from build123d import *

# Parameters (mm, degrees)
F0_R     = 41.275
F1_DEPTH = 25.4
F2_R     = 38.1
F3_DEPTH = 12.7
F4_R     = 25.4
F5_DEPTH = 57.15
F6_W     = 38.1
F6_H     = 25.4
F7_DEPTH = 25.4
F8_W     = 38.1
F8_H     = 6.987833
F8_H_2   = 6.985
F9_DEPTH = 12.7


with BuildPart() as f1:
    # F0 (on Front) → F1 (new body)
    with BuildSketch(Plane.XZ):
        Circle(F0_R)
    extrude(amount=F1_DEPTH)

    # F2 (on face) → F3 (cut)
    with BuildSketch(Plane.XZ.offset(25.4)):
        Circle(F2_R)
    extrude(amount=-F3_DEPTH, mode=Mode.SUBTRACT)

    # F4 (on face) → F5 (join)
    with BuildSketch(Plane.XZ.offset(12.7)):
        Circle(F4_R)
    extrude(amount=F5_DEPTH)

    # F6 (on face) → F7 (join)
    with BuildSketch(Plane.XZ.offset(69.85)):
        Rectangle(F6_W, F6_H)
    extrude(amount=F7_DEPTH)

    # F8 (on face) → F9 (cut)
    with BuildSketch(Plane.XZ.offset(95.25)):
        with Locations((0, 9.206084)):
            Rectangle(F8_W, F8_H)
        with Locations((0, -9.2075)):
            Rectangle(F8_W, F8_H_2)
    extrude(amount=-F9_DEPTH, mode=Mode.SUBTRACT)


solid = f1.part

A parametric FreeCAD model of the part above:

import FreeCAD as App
import Part
import Sketcher

V = App.Vector
Q = App.Units.Quantity


def add_polygon(sketch, points):
    """Adds a closed chain of lines whose ends are joined by coincident constraints."""
    first, n = sketch.GeometryCount, len(points)
    for a, b in zip(points, points[1:] + points[:1]):
        sketch.addGeometry(Part.LineSegment(App.Vector(*a, 0), App.Vector(*b, 0)), False)
    for i in range(n):
        sketch.addConstraint(Sketcher.Constraint("Coincident", first + i, 2, first + (i + 1) % n, 1))

doc = App.newDocument("Part")
body = doc.addObject("PartDesign::Body", "Body")

# Sketch on XZ plane
sketch1 = body.newObject("Sketcher::SketchObject", "Sketch")
sketch1.AttachmentSupport = (doc.getObject("XZ_Plane"), [""])
sketch1.MapMode = "FlatFace"
sketch1.addGeometry(Part.Circle(V(0, 0, 0), V(0, 0, 1), 41), False)
sketch1.addConstraint([
    Sketcher.Constraint("Coincident", 0, 3, -1, 1),
    Sketcher.Constraint("Diameter", 0, Q("3.25 in")),
])
pad1 = body.newObject("PartDesign::Pad", "Pad")
pad1.Profile = sketch1
pad1.Length = Q("1 in")

# Sketch on XZ plane
sketch2 = body.newObject("Sketcher::SketchObject", "Sketch001")
sketch2.AttachmentSupport = (doc.getObject("XZ_Plane"), [""])
sketch2.MapMode = "FlatFace"
sketch2.AttachmentOffset = App.Placement(V(0, 0, 1 * 25.4), App.Rotation())
sketch2.addGeometry(Part.Circle(V(0, 0, 0), V(0, 0, 1), 38), False)
sketch2.addConstraint([
    Sketcher.Constraint("Coincident", 0, 3, -1, 1),
    Sketcher.Constraint("Diameter", 0, Q("3 in")),
])
pocket1 = body.newObject("PartDesign::Pocket", "Pocket")
pocket1.Profile = sketch2
pocket1.Length = Q("0.5 in")

# Sketch on XZ plane
sketch3 = body.newObject("Sketcher::SketchObject", "Sketch002")
sketch3.AttachmentSupport = (doc.getObject("XZ_Plane"), [""])
sketch3.MapMode = "FlatFace"
sketch3.AttachmentOffset = App.Placement(V(0, 0, 0.5 * 25.4), App.Rotation())
sketch3.addGeometry(Part.Circle(V(0, 0, 0), V(0, 0, 1), 25), False)
sketch3.addConstraint([
    Sketcher.Constraint("Coincident", 0, 3, -1, 1),
    Sketcher.Constraint("Diameter", 0, Q("2 in")),
])
pad2 = body.newObject("PartDesign::Pad", "Pad001")
pad2.Profile = sketch3
pad2.Length = Q("2.25 in")

# Sketch on XZ plane
sketch4 = body.newObject("Sketcher::SketchObject", "Sketch003")
sketch4.AttachmentSupport = (doc.getObject("XZ_Plane"), [""])
sketch4.MapMode = "FlatFace"
sketch4.AttachmentOffset = App.Placement(V(0, 0, 2.75 * 25.4), App.Rotation())
add_polygon(sketch4, [(-19, 13), (-19, -13), (19, -13), (19, 13)])  # lines 0-3
sketch4.addConstraint([
    Sketcher.Constraint("Vertical", 0),
    Sketcher.Constraint("Horizontal", 1),
    Sketcher.Constraint("Vertical", 2),
    Sketcher.Constraint("Horizontal", 3),
    Sketcher.Constraint("Symmetric", 0, 2, 2, 2, -1, 1),
    Sketcher.Constraint("DistanceY", 0, 2, 0, 1, Q("1 in")),
    Sketcher.Constraint("DistanceX", 1, 1, 1, 2, Q("1.5 in")),
])
pad3 = body.newObject("PartDesign::Pad", "Pad002")
pad3.Profile = sketch4
pad3.Length = Q("1 in")

# Sketch on XZ plane
sketch5 = body.newObject("Sketcher::SketchObject", "Sketch004")
sketch5.AttachmentSupport = (doc.getObject("XZ_Plane"), [""])
sketch5.MapMode = "FlatFace"
sketch5.AttachmentOffset = App.Placement(V(0, 0, 3.75 * 25.4), App.Rotation())
add_polygon(sketch5, [(-19, 13), (-19, 6), (19, 6), (19, 13)])  # lines 0-3
add_polygon(sketch5, [(-19, -6), (-19, -13), (19, -13), (19, -6)])  # lines 4-7
sketch5.addConstraint([
    Sketcher.Constraint("Vertical", 0),
    Sketcher.Constraint("Horizontal", 1),
    Sketcher.Constraint("Vertical", 2),
    Sketcher.Constraint("Horizontal", 3),
    Sketcher.Constraint("Vertical", 4),
    Sketcher.Constraint("Horizontal", 5),
    Sketcher.Constraint("Vertical", 6),
    Sketcher.Constraint("Horizontal", 7),
    Sketcher.Constraint("Symmetric", 2, 2, 4, 2, -1, 1),
    Sketcher.Constraint("Vertical", 3, 2, 4, 2),
    Sketcher.Constraint("Vertical", 2, 2, 5, 2),
    Sketcher.Constraint("DistanceX", 1, 1, 1, 2, Q("1.5 in")),
    Sketcher.Constraint("DistanceY", 4, 2, 3, 2, Q("1 in")),
    Sketcher.Constraint("DistanceY", 4, 2, 4, 1, Q("0.275 in")),
    Sketcher.Constraint("DistanceY", 0, 2, 0, 1, 6.987833),
])
pocket2 = body.newObject("PartDesign::Pocket", "Pocket001")
pocket2.Profile = sketch5
pocket2.Length = Q("0.5 in")

doc.recompute()
